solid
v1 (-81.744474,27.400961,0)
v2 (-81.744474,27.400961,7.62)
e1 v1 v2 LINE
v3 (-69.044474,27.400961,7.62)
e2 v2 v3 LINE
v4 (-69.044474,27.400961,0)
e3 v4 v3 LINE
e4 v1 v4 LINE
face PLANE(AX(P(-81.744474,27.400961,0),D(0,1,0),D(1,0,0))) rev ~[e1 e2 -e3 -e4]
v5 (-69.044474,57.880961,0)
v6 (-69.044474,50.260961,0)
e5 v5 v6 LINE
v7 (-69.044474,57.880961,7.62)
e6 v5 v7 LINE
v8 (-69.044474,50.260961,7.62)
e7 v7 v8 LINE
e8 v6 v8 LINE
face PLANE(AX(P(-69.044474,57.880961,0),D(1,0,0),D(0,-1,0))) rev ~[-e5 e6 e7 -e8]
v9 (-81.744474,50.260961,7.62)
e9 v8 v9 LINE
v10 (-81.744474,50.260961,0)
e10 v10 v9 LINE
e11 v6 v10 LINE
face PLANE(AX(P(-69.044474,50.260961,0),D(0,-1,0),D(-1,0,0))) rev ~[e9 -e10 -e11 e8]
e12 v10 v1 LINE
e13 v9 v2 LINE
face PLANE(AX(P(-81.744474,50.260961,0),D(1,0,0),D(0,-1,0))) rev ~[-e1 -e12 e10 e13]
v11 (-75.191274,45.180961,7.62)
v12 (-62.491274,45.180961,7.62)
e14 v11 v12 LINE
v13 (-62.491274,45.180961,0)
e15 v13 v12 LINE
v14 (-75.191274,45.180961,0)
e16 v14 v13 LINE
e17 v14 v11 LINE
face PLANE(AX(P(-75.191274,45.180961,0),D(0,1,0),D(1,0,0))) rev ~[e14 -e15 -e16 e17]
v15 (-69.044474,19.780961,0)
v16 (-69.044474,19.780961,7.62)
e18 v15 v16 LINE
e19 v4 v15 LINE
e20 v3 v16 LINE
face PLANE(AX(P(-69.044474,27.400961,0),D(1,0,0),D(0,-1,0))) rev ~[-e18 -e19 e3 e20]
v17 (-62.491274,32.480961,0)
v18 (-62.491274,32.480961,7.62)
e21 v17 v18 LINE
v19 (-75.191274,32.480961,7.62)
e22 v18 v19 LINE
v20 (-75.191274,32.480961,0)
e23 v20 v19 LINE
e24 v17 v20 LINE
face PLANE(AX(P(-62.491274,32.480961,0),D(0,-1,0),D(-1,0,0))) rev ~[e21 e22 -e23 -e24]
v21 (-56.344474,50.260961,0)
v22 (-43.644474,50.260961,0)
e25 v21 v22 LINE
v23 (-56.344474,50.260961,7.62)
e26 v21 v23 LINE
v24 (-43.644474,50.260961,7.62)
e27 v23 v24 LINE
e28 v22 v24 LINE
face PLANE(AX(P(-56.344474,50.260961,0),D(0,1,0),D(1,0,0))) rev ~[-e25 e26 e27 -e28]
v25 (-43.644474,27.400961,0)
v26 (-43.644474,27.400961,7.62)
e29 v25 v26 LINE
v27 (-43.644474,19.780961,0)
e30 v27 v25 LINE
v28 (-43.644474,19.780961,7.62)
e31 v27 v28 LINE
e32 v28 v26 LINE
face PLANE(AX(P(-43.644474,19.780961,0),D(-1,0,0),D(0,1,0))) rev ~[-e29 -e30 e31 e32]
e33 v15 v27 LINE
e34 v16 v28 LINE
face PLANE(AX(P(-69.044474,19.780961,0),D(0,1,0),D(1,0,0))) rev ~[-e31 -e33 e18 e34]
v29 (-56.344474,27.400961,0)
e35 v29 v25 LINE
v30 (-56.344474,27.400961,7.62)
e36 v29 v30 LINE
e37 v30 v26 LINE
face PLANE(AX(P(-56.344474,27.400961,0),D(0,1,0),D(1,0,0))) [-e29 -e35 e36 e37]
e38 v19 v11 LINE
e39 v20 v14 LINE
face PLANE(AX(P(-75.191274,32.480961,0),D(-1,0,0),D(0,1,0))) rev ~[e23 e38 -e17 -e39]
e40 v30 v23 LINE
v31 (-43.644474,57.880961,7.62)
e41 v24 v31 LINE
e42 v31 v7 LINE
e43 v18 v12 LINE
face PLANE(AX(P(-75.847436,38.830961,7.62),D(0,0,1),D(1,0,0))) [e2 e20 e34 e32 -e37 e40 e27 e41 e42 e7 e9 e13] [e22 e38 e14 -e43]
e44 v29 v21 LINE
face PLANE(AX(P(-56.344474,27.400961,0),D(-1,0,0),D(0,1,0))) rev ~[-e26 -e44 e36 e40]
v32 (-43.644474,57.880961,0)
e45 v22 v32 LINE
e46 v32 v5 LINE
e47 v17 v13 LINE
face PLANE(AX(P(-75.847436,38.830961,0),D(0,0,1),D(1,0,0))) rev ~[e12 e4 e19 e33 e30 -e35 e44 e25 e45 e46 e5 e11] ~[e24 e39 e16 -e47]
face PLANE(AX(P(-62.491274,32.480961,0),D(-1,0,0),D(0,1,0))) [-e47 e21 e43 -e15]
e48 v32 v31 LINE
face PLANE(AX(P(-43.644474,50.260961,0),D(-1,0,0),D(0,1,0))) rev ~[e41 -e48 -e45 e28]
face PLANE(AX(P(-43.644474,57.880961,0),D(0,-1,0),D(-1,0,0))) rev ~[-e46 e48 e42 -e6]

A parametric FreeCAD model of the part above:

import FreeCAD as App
import Part
import Sketcher
from FreeCAD import Vector
Q = App.Units.Quantity


def edges_at(feature, points):
    """Names of the edges that pass closest to the given points."""
    edges = feature.Shape.Edges
    near = lambda p: min(range(len(edges)), key=lambda i: edges[i].distToShape(Part.Vertex(*p))[0])
    return sorted({f"Edge{near(p) + 1}" for p in points})


def add_polygon(sketch, points):
    """Adds a closed chain of lines whose ends are joined by coincident constraints."""
    first, n = sketch.GeometryCount, len(points)
    for a, b in zip(points, points[1:] + points[:1]):
        sketch.addGeometry(Part.LineSegment(App.Vector(*a, 0), App.Vector(*b, 0)), False)
    for i in range(n):
        sketch.addConstraint(Sketcher.Constraint("Coincident", first + i, 2, first + (i + 1) % n, 1))

doc = App.newDocument("Part")
params = doc.addObject("Spreadsheet::Sheet", "Params")
for row, (alias, value) in enumerate([
    ("sketch1_width", "1 in"),
    ("sketch1_width2", "0.5 in"),
    ("sketch1_height", "0.9 in"),
    ("sketch1_height2", "0.3 in"),
    ("pad1_length", "0.3 in"),
    ("sketch2_diameter", "2 in"),
    ("pad2_length", "1 in"),
    ("pad3_length", "1 in"),
    ("fillet_radius", "0.2 in"),
], start=1):
    params.set(f"A{row}", alias)
    params.set(f"B{row}", "=" + value)
    params.setAlias(f"B{row}", alias)

body = doc.addObject("PartDesign::Body", "Body")

# Sketch on XY plane
sketch1 = body.newObject("Sketcher::SketchObject", "Sketch")
sketch1.AttachmentSupport = (doc.getObject("XY_Plane"), [""])
sketch1.MapMode = "FlatFace"
add_polygon(sketch1, [(-69, 50), (-82, 50), (-82, 27), (-69, 27), (-69, 20), (-44, 20), (-44, 27), (-56, 27), (-56, 50), (-44, 50), (-44, 58), (-69, 58)])  # lines 0-11
add_polygon(sketch1, [(-62, 32), (-75, 32), (-75, 45), (-62, 45)])  # lines 12-15
sketch1.addConstraint([
    Sketcher.Constraint("Horizontal", 0),
    Sketcher.Constraint("Vertical", 1),
    Sketcher.Constraint("Horizontal", 2),
    Sketcher.Constraint("Vertical", 3),
    Sketcher.Constraint("Horizontal", 4),
    Sketcher.Constraint("Vertical", 5),
    Sketcher.Constraint("Horizontal", 6),
    Sketcher.Constraint("Vertical", 7),
    Sketcher.Constraint("Horizontal", 8),
    Sketcher.Constraint("Vertical", 9),
    Sketcher.Constraint("Horizontal", 10),
    Sketcher.Constraint("Vertical", 11),
    Sketcher.Constraint("Horizontal", 12),
    Sketcher.Constraint("Vertical", 13),
    Sketcher.Constraint("Horizontal", 14),
    Sketcher.Constraint("Vertical", 15),
    Sketcher.Constraint("Horizontal", 2, 2, 5, 2),
    Sketcher.Constraint("Horizontal", 0, 2, 7, 2),
    Sketcher.Constraint("Vertical", 5, 2, 8, 2),
    Sketcher.Constraint("Vertical", 3, 2, 10, 2),
    Sketcher.Constraint("Equal", 2, 6),
    Sketcher.Constraint("Equal", 8, 12),
    Sketcher.Constraint("Equal", 5, 9),
    Sketcher.Constraint("Equal", 14, 13),
    Sketcher.Constraint("DistanceX", 4, 1, 4, 2, Q("1 in")),
    Sketcher.Constraint("DistanceX", 0, 2, 0, 1, Q("0.5 in")),
    Sketcher.Constraint("DistanceY", 1, 2, 1, 1, Q("0.9 in")),
    Sketcher.Constraint("DistanceY", 3, 2, 3, 1, Q("0.3 in")),
    Sketcher.Constraint("DistanceY", 2, 2, 12, 2, Q("0.2 in")),
    Sketcher.Constraint("DistanceX", 12, 2, 2, 2, Q("0.242 in")),
    Sketcher.Constraint("DistanceY", -1, 1, 0, 2, 50.260961),
    Sketcher.Constraint("DistanceX", 0, 2, -1, 1, 81.744474),
])
sketch1.setExpression("Constraints[40]", "Params.sketch1_width")
sketch1.setExpression("Constraints[41]", "Params.sketch1_width2")
sketch1.setExpression("Constraints[42]", "Params.sketch1_height")
sketch1.setExpression("Constraints[43]", "Params.sketch1_height2")
pad1 = body.newObject("PartDesign::Pad", "Pad")
pad1.Profile = sketch1
pad1.setExpression("Length", "Params.pad1_length")
body2 = doc.addObject("PartDesign::Body", "Body001")

# Sketch on XY plane
sketch2 = body2.newObject("Sketcher::SketchObject", "Sketch001")
sketch2.AttachmentSupport = (doc.getObject("XY_Plane001"), [""])
sketch2.MapMode = "FlatFace"
sketch2.addGeometry(Part.Circle(Vector(41, 18, 0), Vector(0, 0, 1), 25), False)
sketch2.addConstraint([
    Sketcher.Constraint("Diameter", 0, Q("2 in")),
    Sketcher.Constraint("DistanceX", -1, 1, 0, 3, 41.206498),
    Sketcher.Constraint("DistanceY", -1, 1, 0, 3, 17.812403),
])
sketch2.setExpression("Constraints[0]", "Params.sketch2_diameter")
pad2 = body2.newObject("PartDesign::Pad", "Pad001")
pad2.Profile = sketch2
pad2.setExpression("Length", "Params.pad2_length")
body3 = doc.addObject("PartDesign::Body", "Body002")

# Sketch on XY plane
sketch3 = body3.newObject("Sketcher::SketchObject", "Sketch002")
sketch3.AttachmentSupport = (doc.getObject("XY_Plane002"), [""])
sketch3.MapMode = "FlatFace"
add_polygon(sketch3, [(43, 53), (28, 64), (26, 45)])  # lines 0-2
sketch3.addConstraint([
    Sketcher.Constraint("Equal", 0, 1),
    Sketcher.Constraint("Equal", 1, 2),
    Sketcher.Constraint("Distance", 0, 18.416302),
    Sketcher.Constraint("DistanceY", -1, 1, 1, 2, 45.36574),
    Sketcher.Constraint("DistanceX", 1, 2, 0, 2, 2.01672),
    Sketcher.Constraint("DistanceX", -1, 1, 0, 2, 27.891826),
])
pad3 = body3.newObject("PartDesign::Pad", "Pad002")
pad3.Profile = sketch3
pad3.setExpression("Length", "Params.pad3_length")
doc.recompute()

fillet = body3.newObject("PartDesign::Fillet", "Fillet")
fillet.Base = (pad3, edges_at(pad3, [
    (35.314, 58.222, 25.4),
    (26.883, 54.519, 25.4),
    (34.306, 49.069, 25.4),
    (35.314, 58.222, 0),
    (26.883, 54.519, 0),
    (34.306, 49.069, 0),
]))
fillet.setExpression("Radius", "Params.fillet_radius")
body2.Visibility = False
body3.Visibility = False

doc.recompute()
